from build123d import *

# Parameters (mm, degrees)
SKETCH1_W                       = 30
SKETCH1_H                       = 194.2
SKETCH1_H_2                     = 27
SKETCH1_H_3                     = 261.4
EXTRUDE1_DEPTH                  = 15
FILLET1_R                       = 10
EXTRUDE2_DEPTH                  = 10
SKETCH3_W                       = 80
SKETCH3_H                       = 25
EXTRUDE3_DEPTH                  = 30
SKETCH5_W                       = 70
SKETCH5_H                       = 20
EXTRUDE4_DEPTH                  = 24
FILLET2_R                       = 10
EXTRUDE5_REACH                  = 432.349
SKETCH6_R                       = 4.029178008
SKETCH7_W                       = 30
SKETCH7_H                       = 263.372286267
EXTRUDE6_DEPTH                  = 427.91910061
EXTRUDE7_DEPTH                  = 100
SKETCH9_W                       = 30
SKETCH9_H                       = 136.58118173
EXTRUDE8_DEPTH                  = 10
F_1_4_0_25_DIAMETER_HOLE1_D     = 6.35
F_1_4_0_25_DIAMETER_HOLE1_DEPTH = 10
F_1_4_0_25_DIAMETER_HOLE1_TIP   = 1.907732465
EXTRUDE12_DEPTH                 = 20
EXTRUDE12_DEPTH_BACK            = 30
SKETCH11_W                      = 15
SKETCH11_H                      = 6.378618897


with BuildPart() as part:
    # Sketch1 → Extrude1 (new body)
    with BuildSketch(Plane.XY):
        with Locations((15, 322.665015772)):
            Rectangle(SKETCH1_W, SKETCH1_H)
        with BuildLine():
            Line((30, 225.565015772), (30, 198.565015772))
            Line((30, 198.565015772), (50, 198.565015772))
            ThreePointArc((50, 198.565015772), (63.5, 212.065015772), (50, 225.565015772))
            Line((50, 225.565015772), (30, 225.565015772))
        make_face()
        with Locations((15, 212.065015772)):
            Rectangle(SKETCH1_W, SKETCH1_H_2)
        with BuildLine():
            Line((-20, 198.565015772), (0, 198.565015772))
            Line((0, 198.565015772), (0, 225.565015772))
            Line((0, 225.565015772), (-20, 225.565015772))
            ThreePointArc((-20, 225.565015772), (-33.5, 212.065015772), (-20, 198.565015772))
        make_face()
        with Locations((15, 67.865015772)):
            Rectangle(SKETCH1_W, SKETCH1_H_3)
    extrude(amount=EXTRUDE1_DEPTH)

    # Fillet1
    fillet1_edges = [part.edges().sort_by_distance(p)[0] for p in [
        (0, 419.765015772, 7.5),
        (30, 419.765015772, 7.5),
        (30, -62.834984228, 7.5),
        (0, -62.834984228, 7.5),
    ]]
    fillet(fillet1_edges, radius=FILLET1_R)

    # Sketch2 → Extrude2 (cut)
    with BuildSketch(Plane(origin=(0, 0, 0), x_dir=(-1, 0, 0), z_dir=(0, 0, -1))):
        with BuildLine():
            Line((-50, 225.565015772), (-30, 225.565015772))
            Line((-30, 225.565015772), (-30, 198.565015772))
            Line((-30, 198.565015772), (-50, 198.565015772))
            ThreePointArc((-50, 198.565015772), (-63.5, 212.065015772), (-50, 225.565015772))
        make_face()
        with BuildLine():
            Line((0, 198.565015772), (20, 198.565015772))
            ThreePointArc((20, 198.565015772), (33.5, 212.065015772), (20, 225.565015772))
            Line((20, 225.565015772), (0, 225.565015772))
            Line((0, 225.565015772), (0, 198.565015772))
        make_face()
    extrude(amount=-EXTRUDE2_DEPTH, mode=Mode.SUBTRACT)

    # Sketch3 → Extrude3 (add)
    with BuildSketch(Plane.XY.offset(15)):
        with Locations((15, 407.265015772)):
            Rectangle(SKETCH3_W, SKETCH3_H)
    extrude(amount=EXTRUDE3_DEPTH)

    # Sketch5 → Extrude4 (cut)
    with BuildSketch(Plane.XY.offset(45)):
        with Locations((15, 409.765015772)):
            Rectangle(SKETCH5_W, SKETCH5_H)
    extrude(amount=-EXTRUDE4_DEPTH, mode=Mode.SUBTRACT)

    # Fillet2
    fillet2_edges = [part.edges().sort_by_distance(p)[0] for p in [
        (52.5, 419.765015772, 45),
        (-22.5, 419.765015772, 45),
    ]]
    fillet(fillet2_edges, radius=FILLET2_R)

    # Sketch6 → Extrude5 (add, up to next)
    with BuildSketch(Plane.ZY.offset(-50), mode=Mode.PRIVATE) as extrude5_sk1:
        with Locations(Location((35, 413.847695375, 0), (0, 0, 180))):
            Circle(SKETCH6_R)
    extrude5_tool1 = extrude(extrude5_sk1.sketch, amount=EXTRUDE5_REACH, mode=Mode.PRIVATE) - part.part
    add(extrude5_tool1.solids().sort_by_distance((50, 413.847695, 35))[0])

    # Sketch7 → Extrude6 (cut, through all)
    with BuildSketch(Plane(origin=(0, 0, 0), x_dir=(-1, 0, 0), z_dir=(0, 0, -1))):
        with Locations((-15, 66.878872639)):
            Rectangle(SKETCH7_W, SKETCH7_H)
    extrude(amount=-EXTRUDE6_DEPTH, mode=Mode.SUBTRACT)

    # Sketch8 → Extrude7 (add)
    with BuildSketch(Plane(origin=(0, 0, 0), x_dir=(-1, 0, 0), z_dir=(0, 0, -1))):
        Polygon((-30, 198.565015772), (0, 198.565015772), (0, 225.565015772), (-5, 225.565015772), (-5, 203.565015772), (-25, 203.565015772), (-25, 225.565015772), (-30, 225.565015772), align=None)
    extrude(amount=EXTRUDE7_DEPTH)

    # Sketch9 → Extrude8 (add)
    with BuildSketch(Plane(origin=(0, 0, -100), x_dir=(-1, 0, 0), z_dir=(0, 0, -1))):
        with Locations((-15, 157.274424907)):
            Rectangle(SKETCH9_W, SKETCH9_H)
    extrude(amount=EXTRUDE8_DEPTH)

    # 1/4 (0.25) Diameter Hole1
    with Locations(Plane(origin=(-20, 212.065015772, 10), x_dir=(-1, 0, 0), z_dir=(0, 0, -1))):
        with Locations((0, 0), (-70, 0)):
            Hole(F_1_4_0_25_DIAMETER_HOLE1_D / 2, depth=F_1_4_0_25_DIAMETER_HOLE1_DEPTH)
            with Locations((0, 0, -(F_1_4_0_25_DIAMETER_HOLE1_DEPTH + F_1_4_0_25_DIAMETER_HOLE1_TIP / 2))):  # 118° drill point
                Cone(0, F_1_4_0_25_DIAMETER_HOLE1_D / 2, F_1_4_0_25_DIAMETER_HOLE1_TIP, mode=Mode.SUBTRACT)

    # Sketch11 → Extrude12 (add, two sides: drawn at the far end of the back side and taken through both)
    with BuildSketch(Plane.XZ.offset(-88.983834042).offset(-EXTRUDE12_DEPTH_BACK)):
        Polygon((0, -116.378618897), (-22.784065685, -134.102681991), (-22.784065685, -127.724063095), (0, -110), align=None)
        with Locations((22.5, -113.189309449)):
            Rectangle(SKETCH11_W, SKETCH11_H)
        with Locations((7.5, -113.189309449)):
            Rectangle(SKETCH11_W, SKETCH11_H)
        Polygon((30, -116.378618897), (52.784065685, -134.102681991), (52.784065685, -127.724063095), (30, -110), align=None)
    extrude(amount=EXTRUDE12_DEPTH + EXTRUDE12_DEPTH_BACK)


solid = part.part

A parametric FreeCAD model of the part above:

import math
import FreeCAD as App
import Part
import Sketcher
from FreeCAD import Vector


def edges_at(feature, points):
    """Names of the edges that pass closest to the given points."""
    edges = feature.Shape.Edges
    near = lambda p: min(range(len(edges)), key=lambda i: edges[i].distToShape(Part.Vertex(*p))[0])
    return sorted({f"Edge{near(p) + 1}" for p in points})

doc = App.newDocument("Part")
body = doc.addObject("PartDesign::Body", "Body")

sketch1 = doc.addObject("Sketcher::SketchObject", "Sketch")
body.addObject(sketch1)
sketch1.AttachmentSupport = (doc.XY_Plane, [""])
sketch1.MapMode = "FlatFace"
sketch1.addGeometry([
    Part.LineSegment(Vector(0, 419.765016, 0), Vector(0, 225.565016, 0)),
    Part.LineSegment(Vector(0, 225.565016, 0), Vector(-20, 225.565016, 0)),
    Part.ArcOfCircle(Part.Circle(Vector(-20, 212.065016, 0), Vector(0, 0, 1), 13.5), math.radians(90), math.radians(270)),
    Part.LineSegment(Vector(-20, 198.565016, 0), Vector(0, 198.565016, 0)),
    Part.LineSegment(Vector(0, 198.565016, 0), Vector(0, -62.834984, 0)),
    Part.LineSegment(Vector(0, -62.834984, 0), Vector(30, -62.834984, 0)),
    Part.LineSegment(Vector(30, -62.834984, 0), Vector(30, 198.565016, 0)),
    Part.LineSegment(Vector(30, 198.565016, 0), Vector(50, 198.565016, 0)),
    Part.ArcOfCircle(Part.Circle(Vector(50, 212.065016, 0), Vector(0, 0, 1), 13.5), math.radians(-90), math.radians(90)),
    Part.LineSegment(Vector(50, 225.565016, 0), Vector(30, 225.565016, 0)),
    Part.LineSegment(Vector(30, 225.565016, 0), Vector(30, 419.765016, 0)),
    Part.LineSegment(Vector(30, 419.765016, 0), Vector(0, 419.765016, 0)),
], False)
sketch1.addConstraint([
    Sketcher.Constraint("Coincident", 0, 2, 1, 1),
    Sketcher.Constraint("Tangent", 1, 2, 2, 1),
    Sketcher.Constraint("Tangent", 2, 2, 3, 1),
    Sketcher.Constraint("Coincident", 3, 2, 4, 1),
    Sketcher.Constraint("Coincident", 4, 2, 5, 1),
    Sketcher.Constraint("Coincident", 5, 2, 6, 1),
    Sketcher.Constraint("Coincident", 6, 2, 7, 1),
    Sketcher.Constraint("Tangent", 7, 2, 8, 1),
    Sketcher.Constraint("Tangent", 8, 2, 9, 1),
    Sketcher.Constraint("Coincident", 9, 2, 10, 1),
    Sketcher.Constraint("Coincident", 10, 2, 11, 1),
    Sketcher.Constraint("Coincident", 11, 2, 0, 1),
    Sketcher.Constraint("Vertical", 0),
    Sketcher.Constraint("Horizontal", 1),
    Sketcher.Constraint("Horizontal", 3),
    Sketcher.Constraint("Vertical", 4),
    Sketcher.Constraint("Horizontal", 5),
    Sketcher.Constraint("Vertical", 6),
    Sketcher.Constraint("Horizontal", 7),
    Sketcher.Constraint("Horizontal", 9),
    Sketcher.Constraint("Vertical", 10),
    Sketcher.Constraint("Horizontal", 11),
    Sketcher.Constraint("Equal", 2, 8),
    Sketcher.Constraint("PointOnObject", 0, 2, -2),
    Sketcher.Constraint("PointOnObject", 3, 2, -2),
    Sketcher.Constraint("Horizontal", 2, 3, 8, 3),
    Sketcher.Constraint("Vertical", 6, 2, 9, 2),
    Sketcher.Constraint("Equal", 3, 7),
    Sketcher.Constraint("Radius", 2, 13.5),
    Sketcher.Constraint("DistanceX", 1, 2, 1, 1, 20.0),
    Sketcher.Constraint("DistanceX", 5, 1, 5, 2, 30.0),
    Sketcher.Constraint("DistanceY", 0, 2, 0, 1, 194.2),
    Sketcher.Constraint("DistanceY", 4, 2, 4, 1, 261.4),
    Sketcher.Constraint("DistanceY", -1, 1, 2, 3, 212.065016),
])
pad1 = doc.addObject("PartDesign::Pad", "Pad")
body.addObject(pad1)
pad1.Profile = sketch1
pad1.Length = 15
doc.recompute()

fillet = doc.addObject("PartDesign::Fillet", "Fillet")
body.addObject(fillet)
fillet.Base = (pad1, edges_at(pad1, [
    (0, 419.765, 7.5),
    (30, 419.765, 7.5),
    (30, -62.835, 7.5),
    (0, -62.835, 7.5),
]))
fillet.Radius = 10

sketch2 = doc.addObject("Sketcher::SketchObject", "Sketch001")
body.addObject(sketch2)
sketch2.AttachmentSupport = (doc.XY_Plane, [""])
sketch2.MapMode = "FlatFace"
sketch2.addGeometry([
    Part.LineSegment(Vector(30, 225.565016, 0), Vector(50, 225.565016, 0)),
    Part.ArcOfCircle(Part.Circle(Vector(50, 212.065016, 0), Vector(0, 0, 1), 13.5), math.radians(-90), math.radians(90)),
    Part.LineSegment(Vector(50, 198.565016, 0), Vector(30, 198.565016, 0)),
    Part.LineSegment(Vector(30, 198.565016, 0), Vector(30, 225.565016, 0)),
    Part.LineSegment(Vector(0, 198.565016, 0), Vector(-20, 198.565016, 0)),
    Part.ArcOfCircle(Part.Circle(Vector(-20, 212.065016, 0), Vector(0, 0, 1), 13.5), math.radians(90), math.radians(270)),
    Part.LineSegment(Vector(-20, 225.565016, 0), Vector(0, 225.565016, 0)),
    Part.LineSegment(Vector(0, 225.565016, 0), Vector(0, 198.565016, 0)),
], False)
sketch2.addConstraint([
    Sketcher.Constraint("Tangent", 0, 2, 1, 2),
    Sketcher.Constraint("Tangent", 1, 1, 2, 1),
    Sketcher.Constraint("Coincident", 2, 2, 3, 1),
    Sketcher.Constraint("Coincident", 3, 2, 0, 1),
    Sketcher.Constraint("Tangent", 4, 2, 5, 2),
    Sketcher.Constraint("Tangent", 5, 1, 6, 1),
    Sketcher.Constraint("Coincident", 6, 2, 7, 1),
    Sketcher.Constraint("Coincident", 7, 2, 4, 1),
    Sketcher.Constraint("Horizontal", 0),
    Sketcher.Constraint("Horizontal", 2),
    Sketcher.Constraint("Vertical", 3),
    Sketcher.Constraint("Horizontal", 4),
    Sketcher.Constraint("Horizontal", 6),
    Sketcher.Constraint("Vertical", 7),
    Sketcher.Constraint("Equal", 1, 5),
    Sketcher.Constraint("PointOnObject", 6, 2, -2),
    Sketcher.Constraint("Horizontal", 1, 3, 5, 3),
    Sketcher.Constraint("Equal", 2, 4),
    Sketcher.Constraint("Radius", 1, 13.5),
    Sketcher.Constraint("DistanceX", 0, 1, 0, 2, 20.0),
    Sketcher.Constraint("DistanceX", -1, 1, 1, 3, 50.0),
    Sketcher.Constraint("DistanceY", -1, 1, 1, 3, 212.065016),
])
pocket1 = doc.addObject("PartDesign::Pocket", "Pocket")
body.addObject(pocket1)
pocket1.Profile = sketch2
pocket1.Length = 10
pocket1.Reversed = True

sketch3 = doc.addObject("Sketcher::SketchObject", "Sketch002")
body.addObject(sketch3)
sketch3.AttachmentSupport = (doc.XY_Plane, [""])
sketch3.MapMode = "FlatFace"
sketch3.AttachmentOffset = App.Placement(Vector(0, 0, 15), App.Rotation())
sketch3.addGeometry([
    Part.LineSegment(Vector(-25, 419.765016, 0), Vector(-25, 394.765016, 0)),
    Part.LineSegment(Vector(-25, 394.765016, 0), Vector(55, 394.765016, 0)),
    Part.LineSegment(Vector(55, 394.765016, 0), Vector(55, 419.765016, 0)),
    Part.LineSegment(Vector(55, 419.765016, 0), Vector(-25, 419.765016, 0)),
], False)
sketch3.addConstraint([
    Sketcher.Constraint("Coincident", 0, 2, 1, 1),
    Sketcher.Constraint("Coincident", 1, 2, 2, 1),
    Sketcher.Constraint("Coincident", 2, 2, 3, 1),
    Sketcher.Constraint("Coincident", 3, 2, 0, 1),
    Sketcher.Constraint("Vertical", 0),
    Sketcher.Constraint("Horizontal", 1),
    Sketcher.Constraint("Vertical", 2),
    Sketcher.Constraint("Horizontal", 3),
    Sketcher.Constraint("DistanceX", 1, 1, 1, 2, 80.0),
    Sketcher.Constraint("DistanceY", 0, 2, 0, 1, 25.0),
    Sketcher.Constraint("DistanceX", 0, 2, -1, 1, 25.0),
    Sketcher.Constraint("DistanceY", -1, 1, 0, 2, 394.765016),
])
pad2 = doc.addObject("PartDesign::Pad", "Pad001")
body.addObject(pad2)
pad2.Profile = sketch3
pad2.Length = 30

sketch4 = doc.addObject("Sketcher::SketchObject", "Sketch003")
body.addObject(sketch4)
sketch4.AttachmentSupport = (doc.XY_Plane, [""])
sketch4.MapMode = "FlatFace"
sketch4.AttachmentOffset = App.Placement(Vector(0, 0, 45), App.Rotation())
sketch4.addGeometry([
    Part.LineSegment(Vector(-20, 419.765016, 0), Vector(-20, 399.765016, 0)),
    Part.LineSegment(Vector(-20, 399.765016, 0), Vector(50, 399.765016, 0)),
    Part.LineSegment(Vector(50, 399.765016, 0), Vector(50, 419.765016, 0)),
    Part.LineSegment(Vector(50, 419.765016, 0), Vector(-20, 419.765016, 0)),
], False)
sketch4.addConstraint([
    Sketcher.Constraint("Coincident", 0, 2, 1, 1),
    Sketcher.Constraint("Coincident", 1, 2, 2, 1),
    Sketcher.Constraint("Coincident", 2, 2, 3, 1),
    Sketcher.Constraint("Coincident", 3, 2, 0, 1),
    Sketcher.Constraint("Vertical", 0),
    Sketcher.Constraint("Horizontal", 1),
    Sketcher.Constraint("Vertical", 2),
    Sketcher.Constraint("Horizontal", 3),
    Sketcher.Constraint("DistanceX", 1, 1, 1, 2, 70.0),
    Sketcher.Constraint("DistanceY", 0, 2, 0, 1, 20.0),
    Sketcher.Constraint("DistanceX", 0, 2, -1, 1, 20.0),
    Sketcher.Constraint("DistanceY", -1, 1, 0, 2, 399.765016),
])
pocket2 = doc.addObject("PartDesign::Pocket", "Pocket001")
body.addObject(pocket2)
pocket2.Profile = sketch4
pocket2.Length = 24
doc.recompute()

fillet2 = doc.addObject("PartDesign::Fillet", "Fillet001")
body.addObject(fillet2)
fillet2.Base = (pocket2, edges_at(pocket2, [(52.5, 419.765, 45), (-22.5, 419.765, 45)]))
fillet2.Radius = 10

sketch5 = doc.addObject("Sketcher::SketchObject", "Sketch004")
body.addObject(sketch5)
sketch5.AttachmentSupport = (doc.YZ_Plane, [""])
sketch5.MapMode = "FlatFace"
sketch5.AttachmentOffset = App.Placement(Vector(0, 0, 50), App.Rotation())
sketch5.addGeometry(Part.Circle(Vector(413.847695, 35, 0), Vector(0, 0, 1), 4.029178), False)
sketch5.addConstraint([
    Sketcher.Constraint("DistanceY", -1, 1, 0, 3, 35.0),
    Sketcher.Constraint("Diameter", 0, 8.058356),
    Sketcher.Constraint("DistanceX", -1, 1, 0, 3, 413.847695),
])
pad3 = doc.addObject("PartDesign::Pad", "Pad002")
body.addObject(pad3)
pad3.Profile = sketch5
pad3.Type = "UpToFirst"
pad3.Reversed = True

sketch6 = doc.addObject("Sketcher::SketchObject", "Sketch005")
body.addObject(sketch6)
sketch6.AttachmentSupport = (doc.XY_Plane, [""])
sketch6.MapMode = "FlatFace"
sketch6.addGeometry([
    Part.LineSegment(Vector(30, 198.565016, 0), Vector(30, -64.80727, 0)),
    Part.LineSegment(Vector(30, -64.80727, 0), Vector(0, -64.80727, 0)),
    Part.LineSegment(Vector(0, -64.80727, 0), Vector(0, 198.565016, 0)),
    Part.LineSegment(Vector(0, 198.565016, 0), Vector(30, 198.565016, 0)),
], False)
sketch6.addConstraint([
    Sketcher.Constraint("Coincident", 0, 2, 1, 1),
    Sketcher.Constraint("Coincident", 1, 2, 2, 1),
    Sketcher.Constraint("Coincident", 2, 2, 3, 1),
    Sketcher.Constraint("Coincident", 3, 2, 0, 1),
    Sketcher.Constraint("Vertical", 0),
    Sketcher.Constraint("Horizontal", 1),
    Sketcher.Constraint("Vertical", 2),
    Sketcher.Constraint("Horizontal", 3),
    Sketcher.Constraint("PointOnObject", 1, 2, -2),
    Sketcher.Constraint("DistanceX", 1, 2, 1, 1, 30.0),
    Sketcher.Constraint("DistanceY", 0, 2, 0, 1, 263.372286),
    Sketcher.Constraint("DistanceY", 0, 2, -1, 1, 64.80727),
])
pocket3 = doc.addObject("PartDesign::Pocket", "Pocket002")
body.addObject(pocket3)
pocket3.Profile = sketch6
pocket3.Type = "ThroughAll"
pocket3.Reversed = True

sketch7 = doc.addObject("Sketcher::SketchObject", "Sketch006")
body.addObject(sketch7)
sketch7.AttachmentSupport = (doc.XY_Plane, [""])
sketch7.MapMode = "FlatFace"
sketch7.addGeometry([
    Part.LineSegment(Vector(30, 198.565016, 0), Vector(0, 198.565016, 0)),
    Part.LineSegment(Vector(0, 198.565016, 0), Vector(0, 225.565016, 0)),
    Part.LineSegment(Vector(0, 225.565016, 0), Vector(5, 225.565016, 0)),
    Part.LineSegment(Vector(5, 225.565016, 0), Vector(5, 203.565016, 0)),
    Part.LineSegment(Vector(5, 203.565016, 0), Vector(25, 203.565016, 0)),
    Part.LineSegment(Vector(25, 203.565016, 0), Vector(25, 225.565016, 0)),
    Part.LineSegment(Vector(25, 225.565016, 0), Vector(30, 225.565016, 0)),
    Part.LineSegment(Vector(30, 225.565016, 0), Vector(30, 198.565016, 0)),
], False)
sketch7.addConstraint([
    Sketcher.Constraint("Coincident", 0, 2, 1, 1),
    Sketcher.Constraint("Coincident", 1, 2, 2, 1),
    Sketcher.Constraint("Coincident", 2, 2, 3, 1),
    Sketcher.Constraint("Coincident", 3, 2, 4, 1),
    Sketcher.Constraint("Coincident", 4, 2, 5, 1),
    Sketcher.Constraint("Coincident", 5, 2, 6, 1),
    Sketcher.Constraint("Coincident", 6, 2, 7, 1),
    Sketcher.Constraint("Coincident", 7, 2, 0, 1),
    Sketcher.Constraint("Horizontal", 0),
    Sketcher.Constraint("Vertical", 1),
    Sketcher.Constraint("Horizontal", 2),
    Sketcher.Constraint("Vertical", 3),
    Sketcher.Constraint("Horizontal", 4),
    Sketcher.Constraint("Vertical", 5),
    Sketcher.Constraint("Horizontal", 6),
    Sketcher.Constraint("Vertical", 7),
    Sketcher.Constraint("PointOnObject", 0, 2, -2),
    Sketcher.Constraint("Horizontal", 2, 2, 5, 2),
    Sketcher.Constraint("Equal", 2, 6),
    Sketcher.Constraint("DistanceX", 0, 2, 0, 1, 30.0),
    Sketcher.Constraint("DistanceX", 2, 1, 2, 2, 5.0),
    Sketcher.Constraint("DistanceY", 1, 1, 1, 2, 27.0),
    Sketcher.Constraint("DistanceY", 3, 2, 3, 1, 22.0),
    Sketcher.Constraint("DistanceY", -1, 1, 0, 2, 198.565016),
])
pad4 = doc.addObject("PartDesign::Pad", "Pad003")
body.addObject(pad4)
pad4.Profile = sketch7
pad4.Length = 100
pad4.Reversed = True

sketch8 = doc.addObject("Sketcher::SketchObject", "Sketch007")
body.addObject(sketch8)
sketch8.AttachmentSupport = (doc.XY_Plane, [""])
sketch8.MapMode = "FlatFace"
sketch8.AttachmentOffset = App.Placement(Vector(0, 0, -100), App.Rotation())
sketch8.addGeometry([
    Part.LineSegment(Vector(30, 225.565016, 0), Vector(30, 88.983834, 0)),
    Part.LineSegment(Vector(30, 88.983834, 0), Vector(0, 88.983834, 0)),
    Part.LineSegment(Vector(0, 88.983834, 0), Vector(0, 225.565016, 0)),
    Part.LineSegment(Vector(0, 225.565016, 0), Vector(30, 225.565016, 0)),
], False)
sketch8.addConstraint([
    Sketcher.Constraint("Coincident", 0, 2, 1, 1),
    Sketcher.Constraint("Coincident", 1, 2, 2, 1),
    Sketcher.Constraint("Coincident", 2, 2, 3, 1),
    Sketcher.Constraint("Coincident", 3, 2, 0, 1),
    Sketcher.Constraint("Vertical", 0),
    Sketcher.Constraint("Horizontal", 1),
    Sketcher.Constraint("Vertical", 2),
    Sketcher.Constraint("Horizontal", 3),
    Sketcher.Constraint("PointOnObject", 1, 2, -2),
    Sketcher.Constraint("DistanceX", 1, 2, 1, 1, 30.0),
    Sketcher.Constraint("DistanceY", 0, 2, 0, 1, 136.581182),
    Sketcher.Constraint("DistanceY", -1, 1, 0, 2, 88.983834),
])
pad5 = doc.addObject("PartDesign::Pad", "Pad004")
body.addObject(pad5)
pad5.Profile = sketch8
pad5.Length = 10
pad5.Reversed = True

sketch9 = doc.addObject("Sketcher::SketchObject", "Sketch008")
body.addObject(sketch9)
sketch9.AttachmentSupport = (doc.XY_Plane, [""])
sketch9.MapMode = "FlatFace"
sketch9.AttachmentOffset = App.Placement(Vector(0, 0, 10), App.Rotation())
sketch9.addGeometry([
    Part.Circle(Vector(-20, 212.065016, 0), Vector(0, 0, 1), 3.175),
    Part.Circle(Vector(50, 212.065016, 0), Vector(0, 0, 1), 3.175),
], False)
sketch9.addConstraint([
    Sketcher.Constraint("Equal", 0, 1),
    Sketcher.Constraint("Horizontal", 0, 3, 1, 3),
    Sketcher.Constraint("Diameter", 0, 6.35),
    Sketcher.Constraint("DistanceX", 0, 3, -1, 1, 20.0),
    Sketcher.Constraint("DistanceX", -1, 1, 1, 3, 50.0),
    Sketcher.Constraint("DistanceY", -1, 1, 0, 3, 212.065016),
])
doc.recompute()
hole = doc.addObject("PartDesign::Hole", "Hole")
body.addObject(hole)
hole.Profile = sketch9
hole.ThreadType = "None"
hole.Diameter = 6.35
hole.DepthType = "Dimension"
hole.Depth = 10
hole.DrillPoint = "Angled"
hole.DrillPointAngle = 118
hole.Reversed = True

sketch10 = doc.addObject("Sketcher::SketchObject", "Sketch009")
body.addObject(sketch10)
sketch10.AttachmentSupport = (doc.XZ_Plane, [""])
sketch10.MapMode = "FlatFace"
sketch10.AttachmentOffset = App.Placement(Vector(0, 0, -88.983834), App.Rotation())
sketch10.addGeometry([
    Part.LineSegment(Vector(-22.784066, -134.102682, 0), Vector(0, -116.378619, 0)),
    Part.LineSegment(Vector(0, -116.378619, 0), Vector(30, -116.378619, 0)),
    Part.LineSegment(Vector(30, -116.378619, 0), Vector(52.784066, -134.102682, 0)),
    Part.LineSegment(Vector(52.784066, -134.102682, 0), Vector(52.784066, -127.724063, 0)),
    Part.LineSegment(Vector(52.784066, -127.724063, 0), Vector(30, -110, 0)),
    Part.LineSegment(Vector(30, -110, 0), Vector(0, -110, 0)),
    Part.LineSegment(Vector(0, -110, 0), Vector(-22.784066, -127.724063, 0)),
    Part.LineSegment(Vector(-22.784066, -127.724063, 0), Vector(-22.784066, -134.102682, 0)),
], False)
sketch10.addConstraint([
    Sketcher.Constraint("Coincident", 0, 2, 1, 1),
    Sketcher.Constraint("Coincident", 1, 2, 2, 1),
    Sketcher.Constraint("Coincident", 2, 2, 3, 1),
    Sketcher.Constraint("Coincident", 3, 2, 4, 1),
    Sketcher.Constraint("Coincident", 4, 2, 5, 1),
    Sketcher.Constraint("Coincident", 5, 2, 6, 1),
    Sketcher.Constraint("Coincident", 6, 2, 7, 1),
    Sketcher.Constraint("Coincident", 7, 2, 0, 1),
    Sketcher.Constraint("Horizontal", 1),
    Sketcher.Constraint("Vertical", 3),
    Sketcher.Constraint("Horizontal", 5),
    Sketcher.Constraint("Vertical", 7),
    Sketcher.Constraint("PointOnObject", 0, 2, -2),
    Sketcher.Constraint("PointOnObject", 5, 2, -2),
    Sketcher.Constraint("Parallel", 2, 4),
    Sketcher.Constraint("Parallel", 0, 6),
    Sketcher.Constraint("Horizontal", 3, 2, 6, 2),
    Sketcher.Constraint("Horizontal", 2, 2, 7, 2),
    Sketcher.Constraint("Equal", 0, 2),
    Sketcher.Constraint("DistanceX", 1, 1, 1, 2, 30.0),
    Sketcher.Constraint("DistanceY", 4, 2, -1, 1, 110.0),
    Sketcher.Constraint("DistanceY", 3, 1, 3, 2, 6.378619),
    Sketcher.Constraint("DistanceY", 2, 2, -1, 1, 134.102682),
    Sketcher.Constraint("DistanceX", 6, 2, 3, 2, 75.568131),
])
pad6 = doc.addObject("PartDesign::Pad", "Pad005")
body.addObject(pad6)
pad6.Profile = sketch10
pad6.Type = "TwoLengths"
pad6.Length = 20
pad6.Length2 = 30

doc.recompute()
